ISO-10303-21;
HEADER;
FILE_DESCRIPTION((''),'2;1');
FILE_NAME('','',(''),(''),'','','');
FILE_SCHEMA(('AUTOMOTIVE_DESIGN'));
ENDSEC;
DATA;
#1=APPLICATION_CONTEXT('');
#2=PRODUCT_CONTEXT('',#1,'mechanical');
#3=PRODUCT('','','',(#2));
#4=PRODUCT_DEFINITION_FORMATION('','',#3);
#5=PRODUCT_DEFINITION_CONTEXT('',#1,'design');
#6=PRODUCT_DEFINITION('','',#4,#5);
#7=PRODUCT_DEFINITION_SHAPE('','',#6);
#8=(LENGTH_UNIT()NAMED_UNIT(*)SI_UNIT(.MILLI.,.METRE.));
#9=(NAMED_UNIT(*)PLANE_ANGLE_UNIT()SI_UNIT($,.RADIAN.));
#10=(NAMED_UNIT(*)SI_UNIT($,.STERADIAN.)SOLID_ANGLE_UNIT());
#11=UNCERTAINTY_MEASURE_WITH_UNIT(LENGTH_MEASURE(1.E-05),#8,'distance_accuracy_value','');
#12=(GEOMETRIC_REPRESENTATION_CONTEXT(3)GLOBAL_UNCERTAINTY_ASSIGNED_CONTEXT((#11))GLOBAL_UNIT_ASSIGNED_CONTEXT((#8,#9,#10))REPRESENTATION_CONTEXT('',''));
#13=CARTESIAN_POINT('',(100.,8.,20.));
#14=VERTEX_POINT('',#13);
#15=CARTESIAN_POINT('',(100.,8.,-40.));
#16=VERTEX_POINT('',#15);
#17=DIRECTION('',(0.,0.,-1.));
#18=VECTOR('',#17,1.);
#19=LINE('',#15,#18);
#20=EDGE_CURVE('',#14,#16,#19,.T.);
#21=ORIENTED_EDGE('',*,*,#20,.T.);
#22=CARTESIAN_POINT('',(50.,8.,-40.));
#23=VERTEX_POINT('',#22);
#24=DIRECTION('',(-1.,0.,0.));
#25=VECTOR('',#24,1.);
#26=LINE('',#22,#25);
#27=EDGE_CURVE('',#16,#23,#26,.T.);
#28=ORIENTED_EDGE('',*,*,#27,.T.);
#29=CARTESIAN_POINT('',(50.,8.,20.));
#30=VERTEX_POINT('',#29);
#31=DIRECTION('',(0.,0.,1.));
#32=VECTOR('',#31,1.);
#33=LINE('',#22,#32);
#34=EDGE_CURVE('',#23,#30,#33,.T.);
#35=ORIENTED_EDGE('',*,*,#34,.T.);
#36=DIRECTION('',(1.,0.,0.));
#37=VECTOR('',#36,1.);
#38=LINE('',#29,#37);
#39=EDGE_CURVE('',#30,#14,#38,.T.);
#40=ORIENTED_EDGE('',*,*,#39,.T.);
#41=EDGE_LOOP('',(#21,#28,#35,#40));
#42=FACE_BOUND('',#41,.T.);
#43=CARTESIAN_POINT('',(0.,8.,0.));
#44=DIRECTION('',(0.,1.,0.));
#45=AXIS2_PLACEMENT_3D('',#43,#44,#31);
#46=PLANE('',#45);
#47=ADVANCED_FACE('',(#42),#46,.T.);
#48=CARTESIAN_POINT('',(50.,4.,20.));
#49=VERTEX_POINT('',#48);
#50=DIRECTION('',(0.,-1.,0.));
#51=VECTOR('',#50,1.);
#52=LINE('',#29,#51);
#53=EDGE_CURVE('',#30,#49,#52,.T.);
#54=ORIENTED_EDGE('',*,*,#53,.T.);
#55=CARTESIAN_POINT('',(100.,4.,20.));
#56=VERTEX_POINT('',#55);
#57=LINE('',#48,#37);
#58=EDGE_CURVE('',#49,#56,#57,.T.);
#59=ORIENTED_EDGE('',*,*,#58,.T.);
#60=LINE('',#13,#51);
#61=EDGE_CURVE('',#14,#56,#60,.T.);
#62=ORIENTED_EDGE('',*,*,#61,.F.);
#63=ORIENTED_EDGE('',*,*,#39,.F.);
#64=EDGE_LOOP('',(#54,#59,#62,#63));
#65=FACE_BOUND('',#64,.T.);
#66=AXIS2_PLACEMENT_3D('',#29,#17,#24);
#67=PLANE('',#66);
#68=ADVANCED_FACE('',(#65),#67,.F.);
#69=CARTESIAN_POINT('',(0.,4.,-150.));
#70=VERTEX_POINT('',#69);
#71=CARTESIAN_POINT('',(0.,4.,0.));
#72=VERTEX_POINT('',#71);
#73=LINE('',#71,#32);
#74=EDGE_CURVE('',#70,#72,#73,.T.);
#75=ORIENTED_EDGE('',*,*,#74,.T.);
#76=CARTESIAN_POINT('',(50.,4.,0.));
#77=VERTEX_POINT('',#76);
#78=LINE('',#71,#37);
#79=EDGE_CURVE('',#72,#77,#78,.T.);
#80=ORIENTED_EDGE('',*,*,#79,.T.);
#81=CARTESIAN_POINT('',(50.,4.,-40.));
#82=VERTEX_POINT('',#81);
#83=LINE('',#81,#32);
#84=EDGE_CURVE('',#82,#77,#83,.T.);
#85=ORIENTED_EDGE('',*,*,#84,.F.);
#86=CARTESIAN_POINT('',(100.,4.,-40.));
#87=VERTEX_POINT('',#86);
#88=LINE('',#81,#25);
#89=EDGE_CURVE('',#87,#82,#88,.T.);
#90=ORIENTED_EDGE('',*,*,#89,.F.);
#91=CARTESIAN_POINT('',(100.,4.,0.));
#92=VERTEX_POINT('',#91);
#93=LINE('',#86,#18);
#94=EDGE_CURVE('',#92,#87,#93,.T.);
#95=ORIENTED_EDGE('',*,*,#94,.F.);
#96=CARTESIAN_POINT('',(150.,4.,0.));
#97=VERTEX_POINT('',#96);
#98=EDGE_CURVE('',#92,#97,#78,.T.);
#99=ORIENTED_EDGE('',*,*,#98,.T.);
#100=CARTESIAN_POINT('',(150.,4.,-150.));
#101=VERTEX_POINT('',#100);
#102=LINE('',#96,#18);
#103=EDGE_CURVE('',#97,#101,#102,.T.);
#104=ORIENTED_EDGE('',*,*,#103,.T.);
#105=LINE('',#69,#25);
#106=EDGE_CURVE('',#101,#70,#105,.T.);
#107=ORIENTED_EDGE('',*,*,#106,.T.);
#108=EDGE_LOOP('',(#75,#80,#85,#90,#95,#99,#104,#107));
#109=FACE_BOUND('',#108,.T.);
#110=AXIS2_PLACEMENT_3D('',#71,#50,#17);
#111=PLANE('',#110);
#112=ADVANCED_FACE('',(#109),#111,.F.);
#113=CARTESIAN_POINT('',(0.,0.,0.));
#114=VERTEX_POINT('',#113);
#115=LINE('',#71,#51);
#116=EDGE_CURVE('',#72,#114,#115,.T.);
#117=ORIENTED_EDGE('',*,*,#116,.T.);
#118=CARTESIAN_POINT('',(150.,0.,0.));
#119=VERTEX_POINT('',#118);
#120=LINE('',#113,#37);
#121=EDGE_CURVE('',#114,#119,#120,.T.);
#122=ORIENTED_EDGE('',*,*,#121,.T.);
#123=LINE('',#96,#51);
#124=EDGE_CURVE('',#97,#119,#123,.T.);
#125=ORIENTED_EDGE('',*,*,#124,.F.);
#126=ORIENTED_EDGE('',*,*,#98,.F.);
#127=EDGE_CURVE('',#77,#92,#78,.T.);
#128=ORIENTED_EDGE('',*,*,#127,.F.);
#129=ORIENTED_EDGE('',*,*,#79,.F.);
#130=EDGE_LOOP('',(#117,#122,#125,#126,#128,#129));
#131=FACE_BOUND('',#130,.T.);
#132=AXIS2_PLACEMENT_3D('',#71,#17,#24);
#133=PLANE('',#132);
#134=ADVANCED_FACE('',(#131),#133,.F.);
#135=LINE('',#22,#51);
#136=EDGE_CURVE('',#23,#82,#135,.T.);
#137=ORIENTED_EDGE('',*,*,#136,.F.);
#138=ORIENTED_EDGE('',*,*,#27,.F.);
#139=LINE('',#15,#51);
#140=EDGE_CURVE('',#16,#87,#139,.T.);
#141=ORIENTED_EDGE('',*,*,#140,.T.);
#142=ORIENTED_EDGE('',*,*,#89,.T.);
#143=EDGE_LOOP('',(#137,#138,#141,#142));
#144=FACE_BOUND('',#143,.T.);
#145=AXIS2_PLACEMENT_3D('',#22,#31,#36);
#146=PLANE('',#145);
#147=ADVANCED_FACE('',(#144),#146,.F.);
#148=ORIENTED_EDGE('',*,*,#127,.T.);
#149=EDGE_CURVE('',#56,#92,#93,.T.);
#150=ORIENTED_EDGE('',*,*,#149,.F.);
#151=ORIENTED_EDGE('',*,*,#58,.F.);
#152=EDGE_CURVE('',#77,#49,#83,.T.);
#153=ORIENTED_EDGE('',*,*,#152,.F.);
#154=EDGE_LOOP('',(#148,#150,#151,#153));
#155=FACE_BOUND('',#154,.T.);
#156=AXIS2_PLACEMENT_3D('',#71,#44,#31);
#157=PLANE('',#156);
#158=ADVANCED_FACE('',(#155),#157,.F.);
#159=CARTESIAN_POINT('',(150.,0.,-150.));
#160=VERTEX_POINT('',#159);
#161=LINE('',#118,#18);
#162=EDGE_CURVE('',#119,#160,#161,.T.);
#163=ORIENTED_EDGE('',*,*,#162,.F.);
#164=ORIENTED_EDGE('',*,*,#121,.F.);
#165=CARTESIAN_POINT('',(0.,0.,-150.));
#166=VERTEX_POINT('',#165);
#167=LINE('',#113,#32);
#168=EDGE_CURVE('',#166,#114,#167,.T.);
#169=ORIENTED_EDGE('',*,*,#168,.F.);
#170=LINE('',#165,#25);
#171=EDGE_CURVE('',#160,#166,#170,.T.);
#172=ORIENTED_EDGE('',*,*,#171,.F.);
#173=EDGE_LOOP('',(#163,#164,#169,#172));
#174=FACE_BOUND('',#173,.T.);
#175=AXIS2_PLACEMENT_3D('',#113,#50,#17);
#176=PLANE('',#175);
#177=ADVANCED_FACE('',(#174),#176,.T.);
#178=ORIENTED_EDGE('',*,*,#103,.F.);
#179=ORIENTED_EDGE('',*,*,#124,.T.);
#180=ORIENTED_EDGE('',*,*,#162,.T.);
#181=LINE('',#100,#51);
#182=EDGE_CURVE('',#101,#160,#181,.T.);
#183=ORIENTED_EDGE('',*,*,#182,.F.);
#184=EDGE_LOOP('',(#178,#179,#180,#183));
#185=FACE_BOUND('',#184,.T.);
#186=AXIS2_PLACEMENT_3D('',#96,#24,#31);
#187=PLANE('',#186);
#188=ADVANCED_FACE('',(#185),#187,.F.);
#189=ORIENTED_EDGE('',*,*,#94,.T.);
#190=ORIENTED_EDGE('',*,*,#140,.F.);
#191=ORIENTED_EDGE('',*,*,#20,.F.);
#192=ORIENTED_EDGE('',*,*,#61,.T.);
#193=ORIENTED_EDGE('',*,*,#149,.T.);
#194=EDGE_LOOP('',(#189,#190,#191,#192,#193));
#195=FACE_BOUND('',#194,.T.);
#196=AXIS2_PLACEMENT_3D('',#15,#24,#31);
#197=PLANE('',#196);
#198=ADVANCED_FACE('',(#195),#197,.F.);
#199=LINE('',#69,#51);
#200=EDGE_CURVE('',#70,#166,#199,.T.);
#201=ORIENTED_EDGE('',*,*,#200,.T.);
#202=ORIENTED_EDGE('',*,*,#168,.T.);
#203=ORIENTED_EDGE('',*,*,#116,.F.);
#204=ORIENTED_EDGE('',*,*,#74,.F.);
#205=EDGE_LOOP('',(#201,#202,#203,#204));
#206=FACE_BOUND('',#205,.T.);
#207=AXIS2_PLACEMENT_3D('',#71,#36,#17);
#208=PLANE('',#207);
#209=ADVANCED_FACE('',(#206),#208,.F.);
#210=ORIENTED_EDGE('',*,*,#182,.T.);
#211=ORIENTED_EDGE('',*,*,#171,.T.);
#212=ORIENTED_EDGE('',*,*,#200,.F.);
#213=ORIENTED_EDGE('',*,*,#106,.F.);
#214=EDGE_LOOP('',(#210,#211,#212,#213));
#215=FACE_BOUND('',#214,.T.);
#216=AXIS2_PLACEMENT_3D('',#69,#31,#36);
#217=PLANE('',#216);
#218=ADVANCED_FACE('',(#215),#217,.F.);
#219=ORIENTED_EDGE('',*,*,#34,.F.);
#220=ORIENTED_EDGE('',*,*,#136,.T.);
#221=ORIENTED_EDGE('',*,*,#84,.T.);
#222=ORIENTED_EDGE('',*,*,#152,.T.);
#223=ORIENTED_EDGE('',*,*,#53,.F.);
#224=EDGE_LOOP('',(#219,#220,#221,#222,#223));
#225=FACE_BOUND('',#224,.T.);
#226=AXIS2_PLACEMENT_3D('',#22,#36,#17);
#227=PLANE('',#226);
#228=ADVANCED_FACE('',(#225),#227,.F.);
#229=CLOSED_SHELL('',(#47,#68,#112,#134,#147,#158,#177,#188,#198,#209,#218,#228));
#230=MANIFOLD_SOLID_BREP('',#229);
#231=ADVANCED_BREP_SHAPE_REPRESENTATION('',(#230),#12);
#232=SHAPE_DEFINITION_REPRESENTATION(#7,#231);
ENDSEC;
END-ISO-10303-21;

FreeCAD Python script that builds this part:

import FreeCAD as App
import Part
import Sketcher
from FreeCAD import Vector

doc = App.newDocument("Part")
params = doc.addObject("Spreadsheet::Sheet", "Params")
for row, (alias, value) in enumerate([
    ("sketch1_width", "150 mm"),
    ("pad1_length", "4 mm"),
    ("sketch2_width", "50 mm"),
    ("sketch2_height", "60 mm"),
    ("pad2_length", "4 mm"),
], start=1):
    params.set(f"A{row}", alias)
    params.set(f"B{row}", "=" + value)
    params.setAlias(f"B{row}", alias)

body = doc.addObject("PartDesign::Body", "Body")

sketch1 = doc.addObject("Sketcher::SketchObject", "Sketch")
body.addObject(sketch1)
sketch1.AttachmentSupport = (doc.XZ_Plane, [""])
sketch1.MapMode = "FlatFace"
sketch1.addGeometry(Part.LineSegment(Vector(0, -150, 0), Vector(0, 0, 0)), False)
sketch1.addGeometry(Part.LineSegment(Vector(0, 0, 0), Vector(150, 0, 0)), False)
sketch1.addGeometry(Part.LineSegment(Vector(150, 0, 0), Vector(150, -150, 0)), False)
sketch1.addGeometry(Part.LineSegment(Vector(150, -150, 0), Vector(0, -150, 0)), False)
sketch1.addConstraint(Sketcher.Constraint("Coincident", 0, 2, 1, 1))
sketch1.addConstraint(Sketcher.Constraint("Coincident", 1, 2, 2, 1))
sketch1.addConstraint(Sketcher.Constraint("Coincident", 2, 2, 3, 1))
sketch1.addConstraint(Sketcher.Constraint("Coincident", 3, 2, 0, 1))
sketch1.addConstraint(Sketcher.Constraint("Vertical", 0))
sketch1.addConstraint(Sketcher.Constraint("Horizontal", 1))
sketch1.addConstraint(Sketcher.Constraint("Vertical", 2))
sketch1.addConstraint(Sketcher.Constraint("Horizontal", 3))
sketch1.addConstraint(Sketcher.Constraint("Coincident", 0, 2, -1, 1))
sketch1.addConstraint(Sketcher.Constraint("Equal", 3, 0))
sketch1.addConstraint(Sketcher.Constraint("DistanceX", 1, 1, 1, 2, 150.0))
sketch1.setExpression("Constraints[10]", "Params.sketch1_width")
pad1 = doc.addObject("PartDesign::Pad", "Pad")
body.addObject(pad1)
pad1.Profile = sketch1
pad1.setExpression("Length", "Params.pad1_length")
pad1.Reversed = True

sketch2 = doc.addObject("Sketcher::SketchObject", "Sketch001")
body.addObject(sketch2)
sketch2.AttachmentSupport = (doc.XZ_Plane, [""])
sketch2.MapMode = "FlatFace"
sketch2.AttachmentOffset = App.Placement(Vector(0, 0, -4), App.Rotation())
sketch2.addGeometry(Part.LineSegment(Vector(50, -40, 0), Vector(50, 20, 0)), False)
sketch2.addGeometry(Part.LineSegment(Vector(50, 20, 0), Vector(100, 20, 0)), False)
sketch2.addGeometry(Part.LineSegment(Vector(100, 20, 0), Vector(100, -40, 0)), False)
sketch2.addGeometry(Part.LineSegment(Vector(100, -40, 0), Vector(50, -40, 0)), False)
sketch2.addConstraint(Sketcher.Constraint("Coincident", 0, 2, 1, 1))
sketch2.addConstraint(Sketcher.Constraint("Coincident", 1, 2, 2, 1))
sketch2.addConstraint(Sketcher.Constraint("Coincident", 2, 2, 3, 1))
sketch2.addConstraint(Sketcher.Constraint("Coincident", 3, 2, 0, 1))
sketch2.addConstraint(Sketcher.Constraint("Vertical", 0))
sketch2.addConstraint(Sketcher.Constraint("Horizontal", 1))
sketch2.addConstraint(Sketcher.Constraint("Vertical", 2))
sketch2.addConstraint(Sketcher.Constraint("Horizontal", 3))
sketch2.addConstraint(Sketcher.Constraint("DistanceX", 1, 1, 1, 2, 50.0))
sketch2.addConstraint(Sketcher.Constraint("DistanceY", 0, 1, 0, 2, 60.0))
sketch2.addConstraint(Sketcher.Constraint("DistanceX", -1, 1, 0, 2, 50.0))
sketch2.addConstraint(Sketcher.Constraint("DistanceY", -1, 1, 0, 2, 20.0))
sketch2.setExpression("Constraints[8]", "Params.sketch2_width")
sketch2.setExpression("Constraints[9]", "Params.sketch2_height")
pad2 = doc.addObject("PartDesign::Pad", "Pad001")
body.addObject(pad2)
pad2.Profile = sketch2
pad2.setExpression("Length", "Params.pad2_length")
pad2.Reversed = True

doc.recompute()
